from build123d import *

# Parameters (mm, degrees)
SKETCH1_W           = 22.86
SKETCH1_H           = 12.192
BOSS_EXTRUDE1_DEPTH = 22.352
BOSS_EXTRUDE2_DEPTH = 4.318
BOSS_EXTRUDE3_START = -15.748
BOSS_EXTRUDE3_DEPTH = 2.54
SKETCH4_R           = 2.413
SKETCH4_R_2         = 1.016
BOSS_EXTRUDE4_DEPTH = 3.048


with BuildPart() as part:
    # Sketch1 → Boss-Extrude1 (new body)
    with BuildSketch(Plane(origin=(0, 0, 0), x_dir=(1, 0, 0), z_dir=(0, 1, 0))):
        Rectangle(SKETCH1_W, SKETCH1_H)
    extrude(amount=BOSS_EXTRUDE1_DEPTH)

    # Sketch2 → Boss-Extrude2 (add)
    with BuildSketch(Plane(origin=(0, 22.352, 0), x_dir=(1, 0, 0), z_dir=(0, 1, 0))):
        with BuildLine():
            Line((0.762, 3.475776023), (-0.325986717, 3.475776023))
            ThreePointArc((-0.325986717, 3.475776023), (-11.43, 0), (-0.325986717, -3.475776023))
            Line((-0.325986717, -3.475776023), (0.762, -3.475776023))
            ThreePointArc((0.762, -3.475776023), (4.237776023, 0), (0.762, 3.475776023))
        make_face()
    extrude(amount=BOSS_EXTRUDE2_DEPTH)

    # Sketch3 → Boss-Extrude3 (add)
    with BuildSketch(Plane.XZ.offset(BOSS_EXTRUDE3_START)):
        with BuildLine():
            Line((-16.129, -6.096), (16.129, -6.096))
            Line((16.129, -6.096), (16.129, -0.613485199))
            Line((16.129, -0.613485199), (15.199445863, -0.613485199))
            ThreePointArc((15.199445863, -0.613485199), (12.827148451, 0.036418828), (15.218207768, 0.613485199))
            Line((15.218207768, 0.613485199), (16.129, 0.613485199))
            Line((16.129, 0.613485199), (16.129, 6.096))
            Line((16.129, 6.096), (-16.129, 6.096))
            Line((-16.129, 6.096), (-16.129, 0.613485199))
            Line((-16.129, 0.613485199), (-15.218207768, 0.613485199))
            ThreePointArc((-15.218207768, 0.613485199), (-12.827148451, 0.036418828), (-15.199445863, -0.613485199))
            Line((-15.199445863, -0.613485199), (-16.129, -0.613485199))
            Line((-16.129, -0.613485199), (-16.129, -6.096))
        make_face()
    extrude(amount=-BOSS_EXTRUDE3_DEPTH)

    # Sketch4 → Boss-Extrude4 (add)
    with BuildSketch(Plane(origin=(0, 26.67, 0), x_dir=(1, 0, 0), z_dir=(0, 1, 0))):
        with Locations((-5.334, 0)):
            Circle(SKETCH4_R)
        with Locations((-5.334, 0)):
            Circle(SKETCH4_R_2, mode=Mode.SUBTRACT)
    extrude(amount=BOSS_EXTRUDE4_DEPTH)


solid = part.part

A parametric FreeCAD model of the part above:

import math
import FreeCAD as App
import Part
import Sketcher
from FreeCAD import Vector
Q = App.Units.Quantity

doc = App.newDocument("Part")
params = doc.addObject("Spreadsheet::Sheet", "Params")
for row, (alias, value) in enumerate([
    ("sketch1_width", "0.9 in"),
    ("sketch1_height", "0.48 in"),
    ("pad1_length", "0.88 in"),
    ("sketch2_radius", "0.24 in"),
    ("pad2_length", "0.17 in"),
    ("sketch3_radius", "0.05 in"),
    ("sketch3_width", "1.27 in"),
    ("pad3_length", "0.1 in"),
    ("sketch4_diameter", "0.19 in"),
    ("sketch4_diameter2", "0.08 in"),
    ("pad4_length", "0.12 in"),
], start=1):
    params.set(f"A{row}", alias)
    params.set(f"B{row}", "=" + value)
    params.setAlias(f"B{row}", alias)

body = doc.addObject("PartDesign::Body", "Body")

# Sketch on XZ plane
sketch1 = body.newObject("Sketcher::SketchObject", "Sketch")
sketch1.AttachmentSupport = (doc.getObject("XZ_Plane"), [""])
sketch1.MapMode = "FlatFace"
sketch1.addGeometry([
    Part.LineSegment(Vector(-11, -6, 0), Vector(-11, 6, 0)),
    Part.LineSegment(Vector(-11, 6, 0), Vector(11, 6, 0)),
    Part.LineSegment(Vector(11, 6, 0), Vector(11, -6, 0)),
    Part.LineSegment(Vector(11, -6, 0), Vector(-11, -6, 0)),
], False)
sketch1.addConstraint([
    Sketcher.Constraint("Coincident", 0, 2, 1, 1),
    Sketcher.Constraint("Coincident", 1, 2, 2, 1),
    Sketcher.Constraint("Coincident", 2, 2, 3, 1),
    Sketcher.Constraint("Coincident", 3, 2, 0, 1),
    Sketcher.Constraint("Vertical", 0),
    Sketcher.Constraint("Horizontal", 1),
    Sketcher.Constraint("Vertical", 2),
    Sketcher.Constraint("Horizontal", 3),
    Sketcher.Constraint("Symmetric", 0, 2, 2, 2, -1, 1),
    Sketcher.Constraint("DistanceX", 1, 1, 1, 2, Q("0.9 in")),
    Sketcher.Constraint("DistanceY", 0, 1, 0, 2, Q("0.48 in")),
])
sketch1.setExpression("Constraints[9]", "Params.sketch1_width")
sketch1.setExpression("Constraints[10]", "Params.sketch1_height")
pad1 = body.newObject("PartDesign::Pad", "Pad")
pad1.Profile = sketch1
pad1.setExpression("Length", "Params.pad1_length")
pad1.Reversed = True

# Sketch on XZ plane
sketch2 = body.newObject("Sketcher::SketchObject", "Sketch001")
sketch2.AttachmentSupport = (doc.getObject("XZ_Plane"), [""])
sketch2.MapMode = "FlatFace"
sketch2.AttachmentOffset = App.Placement(Vector(0, 0, -0.88 * 25.4), App.Rotation())
sketch2.addGeometry([
    Part.LineSegment(Vector(0.8, -3.5, 0), Vector(-0.3, -3.5, 0)),
    Part.ArcOfCircle(Part.Circle(Vector(-5.3, 0, 0), Vector(0, 0, 1), 6.1), math.radians(35), math.radians(325)),
    Part.LineSegment(Vector(-0.3, 3.5, 0), Vector(0.8, 3.5, 0)),
    Part.ArcOfCircle(Part.Circle(Vector(0.8, 0, 0), Vector(0, 0, 1), 3.5), math.radians(-90), math.radians(90)),
], False)
sketch2.addConstraint([
    Sketcher.Constraint("Coincident", 0, 2, 1, 2),
    Sketcher.Constraint("Coincident", 1, 1, 2, 1),
    Sketcher.Constraint("Tangent", 2, 2, 3, 2),
    Sketcher.Constraint("Tangent", 3, 1, 0, 1),
    Sketcher.Constraint("Horizontal", 0),
    Sketcher.Constraint("Horizontal", 2),
    Sketcher.Constraint("Symmetric", 0, 2, 1, 1, -1),
    Sketcher.Constraint("Radius", 1, Q("0.24 in")),
    Sketcher.Constraint("DistanceX", 1, 3, -1, 1, Q("0.21 in")),
    Sketcher.Constraint("DistanceX", -1, 1, 3, 3, Q("0.03 in")),
    Sketcher.Constraint("Radius", 3, 3.475776),
])
sketch2.setExpression("Constraints[7]", "Params.sketch2_radius")
pad2 = body.newObject("PartDesign::Pad", "Pad001")
pad2.Profile = sketch2
pad2.setExpression("Length", "Params.pad2_length")
pad2.Reversed = True

# Sketch on XZ plane
sketch3 = body.newObject("Sketcher::SketchObject", "Sketch002")
sketch3.AttachmentSupport = (doc.getObject("XZ_Plane"), [""])
sketch3.MapMode = "FlatFace"
sketch3.AttachmentOffset = App.Placement(Vector(0, 0, -0.62 * 25.4), App.Rotation())
sketch3.addGeometry([
    Part.LineSegment(Vector(-16.1, -6.1, 0), Vector(16.1, -6.1, 0)),  # 0
    Part.LineSegment(Vector(16.1, -6.1, 0), Vector(16.1, -0.6, 0)),  # 1
    Part.LineSegment(Vector(16.1, -0.6, 0), Vector(15.2, -0.6, 0)),  # 2
    Part.ArcOfCircle(Part.Circle(Vector(14.1, 0, 0), Vector(0, 0, 1), 1.3), math.radians(28), math.radians(330)),  # 3
    Part.LineSegment(Vector(15.2, 0.6, 0), Vector(16.1, 0.6, 0)),  # 4
    Part.LineSegment(Vector(16.1, 0.6, 0), Vector(16.1, 6.1, 0)),  # 5
    Part.LineSegment(Vector(16.1, 6.1, 0), Vector(-16.1, 6.1, 0)),  # 6
    Part.LineSegment(Vector(-16.1, 6.1, 0), Vector(-16.1, 0.6, 0)),  # 7
    Part.LineSegment(Vector(-16.1, 0.6, 0), Vector(-15.2, 0.6, 0)),  # 8
    Part.ArcOfCircle(Part.Circle(Vector(-14.1, 0, 0), Vector(0, 0, 1), 1.3), math.radians(-150), math.radians(152)),  # 9
    Part.LineSegment(Vector(-15.2, -0.6, 0), Vector(-16.1, -0.6, 0)),  # 10
    Part.LineSegment(Vector(-16.1, -0.6, 0), Vector(-16.1, -6.1, 0)),  # 11
], False)
sketch3.addConstraint([
    Sketcher.Constraint("Coincident", 0, 2, 1, 1),
    Sketcher.Constraint("Coincident", 1, 2, 2, 1),
    Sketcher.Constraint("Coincident", 2, 2, 3, 2),
    Sketcher.Constraint("Coincident", 3, 1, 4, 1),
    Sketcher.Constraint("Coincident", 4, 2, 5, 1),
    Sketcher.Constraint("Coincident", 5, 2, 6, 1),
    Sketcher.Constraint("Coincident", 6, 2, 7, 1),
    Sketcher.Constraint("Coincident", 7, 2, 8, 1),
    Sketcher.Constraint("Coincident", 8, 2, 9, 2),
    Sketcher.Constraint("Coincident", 9, 1, 10, 1),
    Sketcher.Constraint("Coincident", 10, 2, 11, 1),
    Sketcher.Constraint("Coincident", 11, 2, 0, 1),
    Sketcher.Constraint("Horizontal", 0),
    Sketcher.Constraint("Vertical", 1),
    Sketcher.Constraint("Horizontal", 2),
    Sketcher.Constraint("Horizontal", 4),
    Sketcher.Constraint("Vertical", 5),
    Sketcher.Constraint("Horizontal", 6),
    Sketcher.Constraint("Vertical", 7),
    Sketcher.Constraint("Horizontal", 8),
    Sketcher.Constraint("Horizontal", 10),
    Sketcher.Constraint("Vertical", 11),
    Sketcher.Constraint("Equal", 3, 9),
    Sketcher.Constraint("Symmetric", 0, 2, 6, 2, -1, 1),
    Sketcher.Constraint("Symmetric", 4, 2, 10, 2, -1, 1),
    Sketcher.Constraint("Symmetric", 3, 3, 9, 3, -2),
    Sketcher.Constraint("Symmetric", 4, 2, 7, 2, -2),
    Sketcher.Constraint("Horizontal", 2, 2, 9, 1),
    Sketcher.Constraint("Radius", 3, Q("0.05 in")),
    Sketcher.Constraint("DistanceX", 0, 1, 0, 2, Q("1.27 in")),
    Sketcher.Constraint("DistanceY", 0, 2, -1, 1, Q("0.24 in")),
    Sketcher.Constraint("DistanceX", 9, 3, 3, 3, Q("1.11 in")),
    Sketcher.Constraint("DistanceY", -1, 1, 3, 3, 0.017001),
    Sketcher.Constraint("DistanceX", 2, 2, 2, 1, 0.929554),
])
sketch3.setExpression("Constraints[28]", "Params.sketch3_radius")
sketch3.setExpression("Constraints[29]", "Params.sketch3_width")
pad3 = body.newObject("PartDesign::Pad", "Pad002")
pad3.Profile = sketch3
pad3.setExpression("Length", "Params.pad3_length")
pad3.Reversed = True

# Sketch on XZ plane
sketch4 = body.newObject("Sketcher::SketchObject", "Sketch003")
sketch4.AttachmentSupport = (doc.getObject("XZ_Plane"), [""])
sketch4.MapMode = "FlatFace"
sketch4.AttachmentOffset = App.Placement(Vector(0, 0, -1.05 * 25.4), App.Rotation())
sketch4.addGeometry([
    Part.Circle(Vector(-5.3, 0, 0), Vector(0, 0, 1), 2.4),
    Part.Circle(Vector(-5.3, 0, 0), Vector(0, 0, 1), 1),
], False)
sketch4.addConstraint([
    Sketcher.Constraint("Coincident", 1, 3, 0, 3),
    Sketcher.Constraint("PointOnObject", 0, 3, -1),
    Sketcher.Constraint("Diameter", 0, Q("0.19 in")),
    Sketcher.Constraint("Diameter", 1, Q("0.08 in")),
    Sketcher.Constraint("DistanceX", 0, 3, -1, 1, Q("0.21 in")),
])
sketch4.setExpression("Constraints[2]", "Params.sketch4_diameter")
sketch4.setExpression("Constraints[3]", "Params.sketch4_diameter2")
pad4 = body.newObject("PartDesign::Pad", "Pad003")
pad4.Profile = sketch4
pad4.setExpression("Length", "Params.pad4_length")
pad4.Reversed = True

doc.recompute()
